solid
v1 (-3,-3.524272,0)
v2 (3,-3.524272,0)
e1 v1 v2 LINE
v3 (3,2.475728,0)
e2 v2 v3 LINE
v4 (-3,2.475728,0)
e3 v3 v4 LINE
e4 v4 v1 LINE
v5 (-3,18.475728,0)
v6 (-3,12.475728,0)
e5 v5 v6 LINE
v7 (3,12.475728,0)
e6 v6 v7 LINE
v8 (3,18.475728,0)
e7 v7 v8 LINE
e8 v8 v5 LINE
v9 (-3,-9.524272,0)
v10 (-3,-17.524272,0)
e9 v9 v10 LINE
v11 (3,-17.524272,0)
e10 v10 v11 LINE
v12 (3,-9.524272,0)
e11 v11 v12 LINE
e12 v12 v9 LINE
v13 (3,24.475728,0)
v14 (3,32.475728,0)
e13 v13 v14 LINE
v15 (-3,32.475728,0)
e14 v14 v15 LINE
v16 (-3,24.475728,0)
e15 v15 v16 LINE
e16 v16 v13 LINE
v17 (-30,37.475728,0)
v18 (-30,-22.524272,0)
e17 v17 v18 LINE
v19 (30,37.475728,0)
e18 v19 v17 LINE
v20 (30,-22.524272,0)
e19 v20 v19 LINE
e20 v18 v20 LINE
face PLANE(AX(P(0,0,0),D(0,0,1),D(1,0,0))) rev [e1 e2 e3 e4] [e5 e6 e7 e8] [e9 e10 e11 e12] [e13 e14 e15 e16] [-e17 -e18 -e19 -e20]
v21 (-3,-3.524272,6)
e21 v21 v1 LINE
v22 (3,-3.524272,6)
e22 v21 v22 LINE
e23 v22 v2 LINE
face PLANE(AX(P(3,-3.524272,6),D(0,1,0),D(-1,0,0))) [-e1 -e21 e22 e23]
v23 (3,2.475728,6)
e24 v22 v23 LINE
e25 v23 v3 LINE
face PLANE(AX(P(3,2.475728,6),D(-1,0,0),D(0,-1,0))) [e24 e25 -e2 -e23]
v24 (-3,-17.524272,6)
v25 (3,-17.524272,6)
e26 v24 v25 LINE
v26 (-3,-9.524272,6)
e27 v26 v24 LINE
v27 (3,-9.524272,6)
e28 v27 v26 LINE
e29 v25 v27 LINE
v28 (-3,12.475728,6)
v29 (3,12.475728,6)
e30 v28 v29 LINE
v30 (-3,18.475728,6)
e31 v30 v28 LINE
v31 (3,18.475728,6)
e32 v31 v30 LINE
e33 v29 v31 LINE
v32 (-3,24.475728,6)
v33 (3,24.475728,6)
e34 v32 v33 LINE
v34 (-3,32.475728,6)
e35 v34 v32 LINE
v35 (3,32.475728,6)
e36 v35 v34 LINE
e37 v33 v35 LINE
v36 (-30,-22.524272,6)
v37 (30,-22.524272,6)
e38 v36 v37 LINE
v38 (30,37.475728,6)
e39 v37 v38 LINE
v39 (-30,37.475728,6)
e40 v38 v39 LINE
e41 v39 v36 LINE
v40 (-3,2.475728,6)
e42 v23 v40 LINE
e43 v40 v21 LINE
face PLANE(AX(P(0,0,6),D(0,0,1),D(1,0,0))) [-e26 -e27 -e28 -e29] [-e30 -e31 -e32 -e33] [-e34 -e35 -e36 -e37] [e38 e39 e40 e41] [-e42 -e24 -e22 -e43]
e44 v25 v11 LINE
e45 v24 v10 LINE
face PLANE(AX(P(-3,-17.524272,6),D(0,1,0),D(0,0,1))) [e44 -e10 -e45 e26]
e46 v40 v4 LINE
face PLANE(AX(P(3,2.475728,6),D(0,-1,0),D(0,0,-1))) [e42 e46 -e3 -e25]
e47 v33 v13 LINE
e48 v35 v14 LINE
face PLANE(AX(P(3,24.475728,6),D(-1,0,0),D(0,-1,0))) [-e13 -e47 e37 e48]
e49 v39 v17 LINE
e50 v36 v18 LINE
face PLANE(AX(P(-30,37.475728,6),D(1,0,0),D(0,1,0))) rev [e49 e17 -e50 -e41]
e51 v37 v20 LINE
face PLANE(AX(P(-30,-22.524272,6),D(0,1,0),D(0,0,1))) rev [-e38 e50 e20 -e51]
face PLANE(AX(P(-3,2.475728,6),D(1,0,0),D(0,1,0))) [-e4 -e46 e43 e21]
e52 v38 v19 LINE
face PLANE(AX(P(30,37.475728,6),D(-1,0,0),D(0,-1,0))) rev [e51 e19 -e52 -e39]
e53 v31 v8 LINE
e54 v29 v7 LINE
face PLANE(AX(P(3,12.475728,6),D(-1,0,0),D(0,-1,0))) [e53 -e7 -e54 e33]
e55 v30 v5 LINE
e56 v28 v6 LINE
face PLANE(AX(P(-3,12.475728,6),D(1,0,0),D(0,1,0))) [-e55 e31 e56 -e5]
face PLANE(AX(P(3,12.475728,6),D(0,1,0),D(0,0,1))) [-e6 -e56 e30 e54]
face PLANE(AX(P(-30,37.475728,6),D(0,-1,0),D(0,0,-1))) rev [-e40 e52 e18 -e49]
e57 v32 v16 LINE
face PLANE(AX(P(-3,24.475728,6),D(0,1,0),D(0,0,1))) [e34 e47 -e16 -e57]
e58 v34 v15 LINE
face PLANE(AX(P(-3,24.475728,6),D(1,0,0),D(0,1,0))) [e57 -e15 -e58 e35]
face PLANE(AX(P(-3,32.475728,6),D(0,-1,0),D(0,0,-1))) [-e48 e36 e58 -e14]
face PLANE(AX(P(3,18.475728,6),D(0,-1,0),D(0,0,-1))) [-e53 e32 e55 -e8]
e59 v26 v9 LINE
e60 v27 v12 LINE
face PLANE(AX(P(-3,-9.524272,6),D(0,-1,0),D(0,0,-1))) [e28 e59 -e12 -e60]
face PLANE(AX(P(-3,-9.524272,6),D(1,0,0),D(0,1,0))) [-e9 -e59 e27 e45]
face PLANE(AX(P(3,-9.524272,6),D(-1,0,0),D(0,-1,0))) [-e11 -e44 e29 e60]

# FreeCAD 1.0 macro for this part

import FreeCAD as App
import Part
import Sketcher
Q = App.Units.Quantity

doc = App.newDocument("Part")
params = doc.addObject("Spreadsheet::Sheet", "Params")
for row, (alias, value) in enumerate([
    ("sketch1_width", "60 mm"),
    ("sketch1_width2", "6 mm"),
    ("sketch1_height", "8 mm"),
    ("pad1_length", "6 mm"),
], start=1):
    params.set(f"A{row}", alias)
    params.set(f"B{row}", "=" + value)
    params.setAlias(f"B{row}", alias)

body = doc.addObject("PartDesign::Body", "Body")

sketch1 = body.newObject("Sketcher::SketchObject", "Sketch")
sketch1.AttachmentSupport = (doc.getObject("XY_Plane"), [""])
sketch1.MapMode = "FlatFace"
sketch1.addGeometry([
    Part.LineSegment(App.Vector(-30, 37, 0), App.Vector(-30, -23, 0)),
    Part.LineSegment(App.Vector(-30, -23, 0), App.Vector(30, -23, 0)),
    Part.LineSegment(App.Vector(30, -23, 0), App.Vector(30, 37, 0)),
    Part.LineSegment(App.Vector(30, 37, 0), App.Vector(-30, 37, 0)),
    Part.LineSegment(App.Vector(3, -18, 0), App.Vector(-3, -18, 0)),
    Part.LineSegment(App.Vector(-3, -18, 0), App.Vector(-3, -10, 0)),
    Part.LineSegment(App.Vector(-3, -10, 0), App.Vector(3, -10, 0)),
    Part.LineSegment(App.Vector(3, -10, 0), App.Vector(3, -18, 0)),
    Part.LineSegment(App.Vector(3, -4, 0), App.Vector(-3, -4, 0)),
    Part.LineSegment(App.Vector(-3, -4, 0), App.Vector(-3, 2, 0)),
    Part.LineSegment(App.Vector(-3, 2, 0), App.Vector(3, 2, 0)),
    Part.LineSegment(App.Vector(3, 2, 0), App.Vector(3, -4, 0)),
    Part.LineSegment(App.Vector(3, 12, 0), App.Vector(-3, 12, 0)),
    Part.LineSegment(App.Vector(-3, 12, 0), App.Vector(-3, 18, 0)),
    Part.LineSegment(App.Vector(-3, 18, 0), App.Vector(3, 18, 0)),
    Part.LineSegment(App.Vector(3, 18, 0), App.Vector(3, 12, 0)),
    Part.LineSegment(App.Vector(3, 24, 0), App.Vector(-3, 24, 0)),
    Part.LineSegment(App.Vector(-3, 24, 0), App.Vector(-3, 32, 0)),
    Part.LineSegment(App.Vector(-3, 32, 0), App.Vector(3, 32, 0)),
    Part.LineSegment(App.Vector(3, 32, 0), App.Vector(3, 24, 0)),
], False)
sketch1.addConstraint([
    Sketcher.Constraint("Coincident", 0, 2, 1, 1),
    Sketcher.Constraint("Coincident", 1, 2, 2, 1),
    Sketcher.Constraint("Coincident", 2, 2, 3, 1),
    Sketcher.Constraint("Coincident", 3, 2, 0, 1),
    Sketcher.Constraint("Coincident", 4, 2, 5, 1),
    Sketcher.Constraint("Coincident", 5, 2, 6, 1),
    Sketcher.Constraint("Coincident", 6, 2, 7, 1),
    Sketcher.Constraint("Coincident", 7, 2, 4, 1),
    Sketcher.Constraint("Coincident", 8, 2, 9, 1),
    Sketcher.Constraint("Coincident", 9, 2, 10, 1),
    Sketcher.Constraint("Coincident", 10, 2, 11, 1),
    Sketcher.Constraint("Coincident", 11, 2, 8, 1),
    Sketcher.Constraint("Coincident", 12, 2, 13, 1),
    Sketcher.Constraint("Coincident", 13, 2, 14, 1),
    Sketcher.Constraint("Coincident", 14, 2, 15, 1),
    Sketcher.Constraint("Coincident", 15, 2, 12, 1),
    Sketcher.Constraint("Coincident", 16, 2, 17, 1),
    Sketcher.Constraint("Coincident", 17, 2, 18, 1),
    Sketcher.Constraint("Coincident", 18, 2, 19, 1),
    Sketcher.Constraint("Coincident", 19, 2, 16, 1),
    Sketcher.Constraint("Vertical", 0),
    Sketcher.Constraint("Horizontal", 1),
    Sketcher.Constraint("Vertical", 2),
    Sketcher.Constraint("Horizontal", 3),
    Sketcher.Constraint("Horizontal", 4),
    Sketcher.Constraint("Vertical", 5),
    Sketcher.Constraint("Horizontal", 6),
    Sketcher.Constraint("Vertical", 7),
    Sketcher.Constraint("Horizontal", 8),
    Sketcher.Constraint("Vertical", 9),
    Sketcher.Constraint("Horizontal", 10),
    Sketcher.Constraint("Vertical", 11),
    Sketcher.Constraint("Horizontal", 12),
    Sketcher.Constraint("Vertical", 13),
    Sketcher.Constraint("Horizontal", 14),
    Sketcher.Constraint("Vertical", 15),
    Sketcher.Constraint("Horizontal", 16),
    Sketcher.Constraint("Vertical", 17),
    Sketcher.Constraint("Horizontal", 18),
    Sketcher.Constraint("Vertical", 19),
    Sketcher.Constraint("Vertical", 5, 2, 8, 2),
    Sketcher.Constraint("Vertical", 7, 2, 10, 2),
    Sketcher.Constraint("Vertical", 9, 2, 12, 2),
    Sketcher.Constraint("Vertical", 11, 2, 14, 2),
    Sketcher.Constraint("Vertical", 13, 2, 16, 2),
    Sketcher.Constraint("Vertical", 15, 2, 18, 2),
    Sketcher.Constraint("Equal", 3, 0),
    Sketcher.Constraint("Equal", 18, 9),
    Sketcher.Constraint("Equal", 11, 13),
    Sketcher.Constraint("Equal", 7, 17),
    Sketcher.Constraint("DistanceX", 1, 1, 1, 2, Q("60 mm")),
    Sketcher.Constraint("DistanceX", 4, 2, 4, 1, Q("6 mm")),
    Sketcher.Constraint("DistanceY", 5, 1, 5, 2, Q("8 mm")),
    Sketcher.Constraint("DistanceX", 0, 2, -1, 1, Q("30 mm")),
    Sketcher.Constraint("DistanceX", 4, 2, -1, 1, Q("3 mm")),
    Sketcher.Constraint("DistanceY", 0, 2, 4, 2, Q("5 mm")),
    Sketcher.Constraint("DistanceY", 5, 2, 8, 2, Q("6 mm")),
    Sketcher.Constraint("DistanceY", 9, 2, 12, 2, Q("10 mm")),
    Sketcher.Constraint("DistanceY", 13, 2, 16, 2, Q("6 mm")),
    Sketcher.Constraint("DistanceY", 0, 2, -1, 1, Q("22.524272 mm")),
])
sketch1.setExpression("Constraints[50]", "Params.sketch1_width")
sketch1.setExpression("Constraints[51]", "Params.sketch1_width2")
sketch1.setExpression("Constraints[52]", "Params.sketch1_height")
pad1 = body.newObject("PartDesign::Pad", "Pad")
pad1.Profile = sketch1
pad1.setExpression("Length", "Params.pad1_length")

doc.recompute()
